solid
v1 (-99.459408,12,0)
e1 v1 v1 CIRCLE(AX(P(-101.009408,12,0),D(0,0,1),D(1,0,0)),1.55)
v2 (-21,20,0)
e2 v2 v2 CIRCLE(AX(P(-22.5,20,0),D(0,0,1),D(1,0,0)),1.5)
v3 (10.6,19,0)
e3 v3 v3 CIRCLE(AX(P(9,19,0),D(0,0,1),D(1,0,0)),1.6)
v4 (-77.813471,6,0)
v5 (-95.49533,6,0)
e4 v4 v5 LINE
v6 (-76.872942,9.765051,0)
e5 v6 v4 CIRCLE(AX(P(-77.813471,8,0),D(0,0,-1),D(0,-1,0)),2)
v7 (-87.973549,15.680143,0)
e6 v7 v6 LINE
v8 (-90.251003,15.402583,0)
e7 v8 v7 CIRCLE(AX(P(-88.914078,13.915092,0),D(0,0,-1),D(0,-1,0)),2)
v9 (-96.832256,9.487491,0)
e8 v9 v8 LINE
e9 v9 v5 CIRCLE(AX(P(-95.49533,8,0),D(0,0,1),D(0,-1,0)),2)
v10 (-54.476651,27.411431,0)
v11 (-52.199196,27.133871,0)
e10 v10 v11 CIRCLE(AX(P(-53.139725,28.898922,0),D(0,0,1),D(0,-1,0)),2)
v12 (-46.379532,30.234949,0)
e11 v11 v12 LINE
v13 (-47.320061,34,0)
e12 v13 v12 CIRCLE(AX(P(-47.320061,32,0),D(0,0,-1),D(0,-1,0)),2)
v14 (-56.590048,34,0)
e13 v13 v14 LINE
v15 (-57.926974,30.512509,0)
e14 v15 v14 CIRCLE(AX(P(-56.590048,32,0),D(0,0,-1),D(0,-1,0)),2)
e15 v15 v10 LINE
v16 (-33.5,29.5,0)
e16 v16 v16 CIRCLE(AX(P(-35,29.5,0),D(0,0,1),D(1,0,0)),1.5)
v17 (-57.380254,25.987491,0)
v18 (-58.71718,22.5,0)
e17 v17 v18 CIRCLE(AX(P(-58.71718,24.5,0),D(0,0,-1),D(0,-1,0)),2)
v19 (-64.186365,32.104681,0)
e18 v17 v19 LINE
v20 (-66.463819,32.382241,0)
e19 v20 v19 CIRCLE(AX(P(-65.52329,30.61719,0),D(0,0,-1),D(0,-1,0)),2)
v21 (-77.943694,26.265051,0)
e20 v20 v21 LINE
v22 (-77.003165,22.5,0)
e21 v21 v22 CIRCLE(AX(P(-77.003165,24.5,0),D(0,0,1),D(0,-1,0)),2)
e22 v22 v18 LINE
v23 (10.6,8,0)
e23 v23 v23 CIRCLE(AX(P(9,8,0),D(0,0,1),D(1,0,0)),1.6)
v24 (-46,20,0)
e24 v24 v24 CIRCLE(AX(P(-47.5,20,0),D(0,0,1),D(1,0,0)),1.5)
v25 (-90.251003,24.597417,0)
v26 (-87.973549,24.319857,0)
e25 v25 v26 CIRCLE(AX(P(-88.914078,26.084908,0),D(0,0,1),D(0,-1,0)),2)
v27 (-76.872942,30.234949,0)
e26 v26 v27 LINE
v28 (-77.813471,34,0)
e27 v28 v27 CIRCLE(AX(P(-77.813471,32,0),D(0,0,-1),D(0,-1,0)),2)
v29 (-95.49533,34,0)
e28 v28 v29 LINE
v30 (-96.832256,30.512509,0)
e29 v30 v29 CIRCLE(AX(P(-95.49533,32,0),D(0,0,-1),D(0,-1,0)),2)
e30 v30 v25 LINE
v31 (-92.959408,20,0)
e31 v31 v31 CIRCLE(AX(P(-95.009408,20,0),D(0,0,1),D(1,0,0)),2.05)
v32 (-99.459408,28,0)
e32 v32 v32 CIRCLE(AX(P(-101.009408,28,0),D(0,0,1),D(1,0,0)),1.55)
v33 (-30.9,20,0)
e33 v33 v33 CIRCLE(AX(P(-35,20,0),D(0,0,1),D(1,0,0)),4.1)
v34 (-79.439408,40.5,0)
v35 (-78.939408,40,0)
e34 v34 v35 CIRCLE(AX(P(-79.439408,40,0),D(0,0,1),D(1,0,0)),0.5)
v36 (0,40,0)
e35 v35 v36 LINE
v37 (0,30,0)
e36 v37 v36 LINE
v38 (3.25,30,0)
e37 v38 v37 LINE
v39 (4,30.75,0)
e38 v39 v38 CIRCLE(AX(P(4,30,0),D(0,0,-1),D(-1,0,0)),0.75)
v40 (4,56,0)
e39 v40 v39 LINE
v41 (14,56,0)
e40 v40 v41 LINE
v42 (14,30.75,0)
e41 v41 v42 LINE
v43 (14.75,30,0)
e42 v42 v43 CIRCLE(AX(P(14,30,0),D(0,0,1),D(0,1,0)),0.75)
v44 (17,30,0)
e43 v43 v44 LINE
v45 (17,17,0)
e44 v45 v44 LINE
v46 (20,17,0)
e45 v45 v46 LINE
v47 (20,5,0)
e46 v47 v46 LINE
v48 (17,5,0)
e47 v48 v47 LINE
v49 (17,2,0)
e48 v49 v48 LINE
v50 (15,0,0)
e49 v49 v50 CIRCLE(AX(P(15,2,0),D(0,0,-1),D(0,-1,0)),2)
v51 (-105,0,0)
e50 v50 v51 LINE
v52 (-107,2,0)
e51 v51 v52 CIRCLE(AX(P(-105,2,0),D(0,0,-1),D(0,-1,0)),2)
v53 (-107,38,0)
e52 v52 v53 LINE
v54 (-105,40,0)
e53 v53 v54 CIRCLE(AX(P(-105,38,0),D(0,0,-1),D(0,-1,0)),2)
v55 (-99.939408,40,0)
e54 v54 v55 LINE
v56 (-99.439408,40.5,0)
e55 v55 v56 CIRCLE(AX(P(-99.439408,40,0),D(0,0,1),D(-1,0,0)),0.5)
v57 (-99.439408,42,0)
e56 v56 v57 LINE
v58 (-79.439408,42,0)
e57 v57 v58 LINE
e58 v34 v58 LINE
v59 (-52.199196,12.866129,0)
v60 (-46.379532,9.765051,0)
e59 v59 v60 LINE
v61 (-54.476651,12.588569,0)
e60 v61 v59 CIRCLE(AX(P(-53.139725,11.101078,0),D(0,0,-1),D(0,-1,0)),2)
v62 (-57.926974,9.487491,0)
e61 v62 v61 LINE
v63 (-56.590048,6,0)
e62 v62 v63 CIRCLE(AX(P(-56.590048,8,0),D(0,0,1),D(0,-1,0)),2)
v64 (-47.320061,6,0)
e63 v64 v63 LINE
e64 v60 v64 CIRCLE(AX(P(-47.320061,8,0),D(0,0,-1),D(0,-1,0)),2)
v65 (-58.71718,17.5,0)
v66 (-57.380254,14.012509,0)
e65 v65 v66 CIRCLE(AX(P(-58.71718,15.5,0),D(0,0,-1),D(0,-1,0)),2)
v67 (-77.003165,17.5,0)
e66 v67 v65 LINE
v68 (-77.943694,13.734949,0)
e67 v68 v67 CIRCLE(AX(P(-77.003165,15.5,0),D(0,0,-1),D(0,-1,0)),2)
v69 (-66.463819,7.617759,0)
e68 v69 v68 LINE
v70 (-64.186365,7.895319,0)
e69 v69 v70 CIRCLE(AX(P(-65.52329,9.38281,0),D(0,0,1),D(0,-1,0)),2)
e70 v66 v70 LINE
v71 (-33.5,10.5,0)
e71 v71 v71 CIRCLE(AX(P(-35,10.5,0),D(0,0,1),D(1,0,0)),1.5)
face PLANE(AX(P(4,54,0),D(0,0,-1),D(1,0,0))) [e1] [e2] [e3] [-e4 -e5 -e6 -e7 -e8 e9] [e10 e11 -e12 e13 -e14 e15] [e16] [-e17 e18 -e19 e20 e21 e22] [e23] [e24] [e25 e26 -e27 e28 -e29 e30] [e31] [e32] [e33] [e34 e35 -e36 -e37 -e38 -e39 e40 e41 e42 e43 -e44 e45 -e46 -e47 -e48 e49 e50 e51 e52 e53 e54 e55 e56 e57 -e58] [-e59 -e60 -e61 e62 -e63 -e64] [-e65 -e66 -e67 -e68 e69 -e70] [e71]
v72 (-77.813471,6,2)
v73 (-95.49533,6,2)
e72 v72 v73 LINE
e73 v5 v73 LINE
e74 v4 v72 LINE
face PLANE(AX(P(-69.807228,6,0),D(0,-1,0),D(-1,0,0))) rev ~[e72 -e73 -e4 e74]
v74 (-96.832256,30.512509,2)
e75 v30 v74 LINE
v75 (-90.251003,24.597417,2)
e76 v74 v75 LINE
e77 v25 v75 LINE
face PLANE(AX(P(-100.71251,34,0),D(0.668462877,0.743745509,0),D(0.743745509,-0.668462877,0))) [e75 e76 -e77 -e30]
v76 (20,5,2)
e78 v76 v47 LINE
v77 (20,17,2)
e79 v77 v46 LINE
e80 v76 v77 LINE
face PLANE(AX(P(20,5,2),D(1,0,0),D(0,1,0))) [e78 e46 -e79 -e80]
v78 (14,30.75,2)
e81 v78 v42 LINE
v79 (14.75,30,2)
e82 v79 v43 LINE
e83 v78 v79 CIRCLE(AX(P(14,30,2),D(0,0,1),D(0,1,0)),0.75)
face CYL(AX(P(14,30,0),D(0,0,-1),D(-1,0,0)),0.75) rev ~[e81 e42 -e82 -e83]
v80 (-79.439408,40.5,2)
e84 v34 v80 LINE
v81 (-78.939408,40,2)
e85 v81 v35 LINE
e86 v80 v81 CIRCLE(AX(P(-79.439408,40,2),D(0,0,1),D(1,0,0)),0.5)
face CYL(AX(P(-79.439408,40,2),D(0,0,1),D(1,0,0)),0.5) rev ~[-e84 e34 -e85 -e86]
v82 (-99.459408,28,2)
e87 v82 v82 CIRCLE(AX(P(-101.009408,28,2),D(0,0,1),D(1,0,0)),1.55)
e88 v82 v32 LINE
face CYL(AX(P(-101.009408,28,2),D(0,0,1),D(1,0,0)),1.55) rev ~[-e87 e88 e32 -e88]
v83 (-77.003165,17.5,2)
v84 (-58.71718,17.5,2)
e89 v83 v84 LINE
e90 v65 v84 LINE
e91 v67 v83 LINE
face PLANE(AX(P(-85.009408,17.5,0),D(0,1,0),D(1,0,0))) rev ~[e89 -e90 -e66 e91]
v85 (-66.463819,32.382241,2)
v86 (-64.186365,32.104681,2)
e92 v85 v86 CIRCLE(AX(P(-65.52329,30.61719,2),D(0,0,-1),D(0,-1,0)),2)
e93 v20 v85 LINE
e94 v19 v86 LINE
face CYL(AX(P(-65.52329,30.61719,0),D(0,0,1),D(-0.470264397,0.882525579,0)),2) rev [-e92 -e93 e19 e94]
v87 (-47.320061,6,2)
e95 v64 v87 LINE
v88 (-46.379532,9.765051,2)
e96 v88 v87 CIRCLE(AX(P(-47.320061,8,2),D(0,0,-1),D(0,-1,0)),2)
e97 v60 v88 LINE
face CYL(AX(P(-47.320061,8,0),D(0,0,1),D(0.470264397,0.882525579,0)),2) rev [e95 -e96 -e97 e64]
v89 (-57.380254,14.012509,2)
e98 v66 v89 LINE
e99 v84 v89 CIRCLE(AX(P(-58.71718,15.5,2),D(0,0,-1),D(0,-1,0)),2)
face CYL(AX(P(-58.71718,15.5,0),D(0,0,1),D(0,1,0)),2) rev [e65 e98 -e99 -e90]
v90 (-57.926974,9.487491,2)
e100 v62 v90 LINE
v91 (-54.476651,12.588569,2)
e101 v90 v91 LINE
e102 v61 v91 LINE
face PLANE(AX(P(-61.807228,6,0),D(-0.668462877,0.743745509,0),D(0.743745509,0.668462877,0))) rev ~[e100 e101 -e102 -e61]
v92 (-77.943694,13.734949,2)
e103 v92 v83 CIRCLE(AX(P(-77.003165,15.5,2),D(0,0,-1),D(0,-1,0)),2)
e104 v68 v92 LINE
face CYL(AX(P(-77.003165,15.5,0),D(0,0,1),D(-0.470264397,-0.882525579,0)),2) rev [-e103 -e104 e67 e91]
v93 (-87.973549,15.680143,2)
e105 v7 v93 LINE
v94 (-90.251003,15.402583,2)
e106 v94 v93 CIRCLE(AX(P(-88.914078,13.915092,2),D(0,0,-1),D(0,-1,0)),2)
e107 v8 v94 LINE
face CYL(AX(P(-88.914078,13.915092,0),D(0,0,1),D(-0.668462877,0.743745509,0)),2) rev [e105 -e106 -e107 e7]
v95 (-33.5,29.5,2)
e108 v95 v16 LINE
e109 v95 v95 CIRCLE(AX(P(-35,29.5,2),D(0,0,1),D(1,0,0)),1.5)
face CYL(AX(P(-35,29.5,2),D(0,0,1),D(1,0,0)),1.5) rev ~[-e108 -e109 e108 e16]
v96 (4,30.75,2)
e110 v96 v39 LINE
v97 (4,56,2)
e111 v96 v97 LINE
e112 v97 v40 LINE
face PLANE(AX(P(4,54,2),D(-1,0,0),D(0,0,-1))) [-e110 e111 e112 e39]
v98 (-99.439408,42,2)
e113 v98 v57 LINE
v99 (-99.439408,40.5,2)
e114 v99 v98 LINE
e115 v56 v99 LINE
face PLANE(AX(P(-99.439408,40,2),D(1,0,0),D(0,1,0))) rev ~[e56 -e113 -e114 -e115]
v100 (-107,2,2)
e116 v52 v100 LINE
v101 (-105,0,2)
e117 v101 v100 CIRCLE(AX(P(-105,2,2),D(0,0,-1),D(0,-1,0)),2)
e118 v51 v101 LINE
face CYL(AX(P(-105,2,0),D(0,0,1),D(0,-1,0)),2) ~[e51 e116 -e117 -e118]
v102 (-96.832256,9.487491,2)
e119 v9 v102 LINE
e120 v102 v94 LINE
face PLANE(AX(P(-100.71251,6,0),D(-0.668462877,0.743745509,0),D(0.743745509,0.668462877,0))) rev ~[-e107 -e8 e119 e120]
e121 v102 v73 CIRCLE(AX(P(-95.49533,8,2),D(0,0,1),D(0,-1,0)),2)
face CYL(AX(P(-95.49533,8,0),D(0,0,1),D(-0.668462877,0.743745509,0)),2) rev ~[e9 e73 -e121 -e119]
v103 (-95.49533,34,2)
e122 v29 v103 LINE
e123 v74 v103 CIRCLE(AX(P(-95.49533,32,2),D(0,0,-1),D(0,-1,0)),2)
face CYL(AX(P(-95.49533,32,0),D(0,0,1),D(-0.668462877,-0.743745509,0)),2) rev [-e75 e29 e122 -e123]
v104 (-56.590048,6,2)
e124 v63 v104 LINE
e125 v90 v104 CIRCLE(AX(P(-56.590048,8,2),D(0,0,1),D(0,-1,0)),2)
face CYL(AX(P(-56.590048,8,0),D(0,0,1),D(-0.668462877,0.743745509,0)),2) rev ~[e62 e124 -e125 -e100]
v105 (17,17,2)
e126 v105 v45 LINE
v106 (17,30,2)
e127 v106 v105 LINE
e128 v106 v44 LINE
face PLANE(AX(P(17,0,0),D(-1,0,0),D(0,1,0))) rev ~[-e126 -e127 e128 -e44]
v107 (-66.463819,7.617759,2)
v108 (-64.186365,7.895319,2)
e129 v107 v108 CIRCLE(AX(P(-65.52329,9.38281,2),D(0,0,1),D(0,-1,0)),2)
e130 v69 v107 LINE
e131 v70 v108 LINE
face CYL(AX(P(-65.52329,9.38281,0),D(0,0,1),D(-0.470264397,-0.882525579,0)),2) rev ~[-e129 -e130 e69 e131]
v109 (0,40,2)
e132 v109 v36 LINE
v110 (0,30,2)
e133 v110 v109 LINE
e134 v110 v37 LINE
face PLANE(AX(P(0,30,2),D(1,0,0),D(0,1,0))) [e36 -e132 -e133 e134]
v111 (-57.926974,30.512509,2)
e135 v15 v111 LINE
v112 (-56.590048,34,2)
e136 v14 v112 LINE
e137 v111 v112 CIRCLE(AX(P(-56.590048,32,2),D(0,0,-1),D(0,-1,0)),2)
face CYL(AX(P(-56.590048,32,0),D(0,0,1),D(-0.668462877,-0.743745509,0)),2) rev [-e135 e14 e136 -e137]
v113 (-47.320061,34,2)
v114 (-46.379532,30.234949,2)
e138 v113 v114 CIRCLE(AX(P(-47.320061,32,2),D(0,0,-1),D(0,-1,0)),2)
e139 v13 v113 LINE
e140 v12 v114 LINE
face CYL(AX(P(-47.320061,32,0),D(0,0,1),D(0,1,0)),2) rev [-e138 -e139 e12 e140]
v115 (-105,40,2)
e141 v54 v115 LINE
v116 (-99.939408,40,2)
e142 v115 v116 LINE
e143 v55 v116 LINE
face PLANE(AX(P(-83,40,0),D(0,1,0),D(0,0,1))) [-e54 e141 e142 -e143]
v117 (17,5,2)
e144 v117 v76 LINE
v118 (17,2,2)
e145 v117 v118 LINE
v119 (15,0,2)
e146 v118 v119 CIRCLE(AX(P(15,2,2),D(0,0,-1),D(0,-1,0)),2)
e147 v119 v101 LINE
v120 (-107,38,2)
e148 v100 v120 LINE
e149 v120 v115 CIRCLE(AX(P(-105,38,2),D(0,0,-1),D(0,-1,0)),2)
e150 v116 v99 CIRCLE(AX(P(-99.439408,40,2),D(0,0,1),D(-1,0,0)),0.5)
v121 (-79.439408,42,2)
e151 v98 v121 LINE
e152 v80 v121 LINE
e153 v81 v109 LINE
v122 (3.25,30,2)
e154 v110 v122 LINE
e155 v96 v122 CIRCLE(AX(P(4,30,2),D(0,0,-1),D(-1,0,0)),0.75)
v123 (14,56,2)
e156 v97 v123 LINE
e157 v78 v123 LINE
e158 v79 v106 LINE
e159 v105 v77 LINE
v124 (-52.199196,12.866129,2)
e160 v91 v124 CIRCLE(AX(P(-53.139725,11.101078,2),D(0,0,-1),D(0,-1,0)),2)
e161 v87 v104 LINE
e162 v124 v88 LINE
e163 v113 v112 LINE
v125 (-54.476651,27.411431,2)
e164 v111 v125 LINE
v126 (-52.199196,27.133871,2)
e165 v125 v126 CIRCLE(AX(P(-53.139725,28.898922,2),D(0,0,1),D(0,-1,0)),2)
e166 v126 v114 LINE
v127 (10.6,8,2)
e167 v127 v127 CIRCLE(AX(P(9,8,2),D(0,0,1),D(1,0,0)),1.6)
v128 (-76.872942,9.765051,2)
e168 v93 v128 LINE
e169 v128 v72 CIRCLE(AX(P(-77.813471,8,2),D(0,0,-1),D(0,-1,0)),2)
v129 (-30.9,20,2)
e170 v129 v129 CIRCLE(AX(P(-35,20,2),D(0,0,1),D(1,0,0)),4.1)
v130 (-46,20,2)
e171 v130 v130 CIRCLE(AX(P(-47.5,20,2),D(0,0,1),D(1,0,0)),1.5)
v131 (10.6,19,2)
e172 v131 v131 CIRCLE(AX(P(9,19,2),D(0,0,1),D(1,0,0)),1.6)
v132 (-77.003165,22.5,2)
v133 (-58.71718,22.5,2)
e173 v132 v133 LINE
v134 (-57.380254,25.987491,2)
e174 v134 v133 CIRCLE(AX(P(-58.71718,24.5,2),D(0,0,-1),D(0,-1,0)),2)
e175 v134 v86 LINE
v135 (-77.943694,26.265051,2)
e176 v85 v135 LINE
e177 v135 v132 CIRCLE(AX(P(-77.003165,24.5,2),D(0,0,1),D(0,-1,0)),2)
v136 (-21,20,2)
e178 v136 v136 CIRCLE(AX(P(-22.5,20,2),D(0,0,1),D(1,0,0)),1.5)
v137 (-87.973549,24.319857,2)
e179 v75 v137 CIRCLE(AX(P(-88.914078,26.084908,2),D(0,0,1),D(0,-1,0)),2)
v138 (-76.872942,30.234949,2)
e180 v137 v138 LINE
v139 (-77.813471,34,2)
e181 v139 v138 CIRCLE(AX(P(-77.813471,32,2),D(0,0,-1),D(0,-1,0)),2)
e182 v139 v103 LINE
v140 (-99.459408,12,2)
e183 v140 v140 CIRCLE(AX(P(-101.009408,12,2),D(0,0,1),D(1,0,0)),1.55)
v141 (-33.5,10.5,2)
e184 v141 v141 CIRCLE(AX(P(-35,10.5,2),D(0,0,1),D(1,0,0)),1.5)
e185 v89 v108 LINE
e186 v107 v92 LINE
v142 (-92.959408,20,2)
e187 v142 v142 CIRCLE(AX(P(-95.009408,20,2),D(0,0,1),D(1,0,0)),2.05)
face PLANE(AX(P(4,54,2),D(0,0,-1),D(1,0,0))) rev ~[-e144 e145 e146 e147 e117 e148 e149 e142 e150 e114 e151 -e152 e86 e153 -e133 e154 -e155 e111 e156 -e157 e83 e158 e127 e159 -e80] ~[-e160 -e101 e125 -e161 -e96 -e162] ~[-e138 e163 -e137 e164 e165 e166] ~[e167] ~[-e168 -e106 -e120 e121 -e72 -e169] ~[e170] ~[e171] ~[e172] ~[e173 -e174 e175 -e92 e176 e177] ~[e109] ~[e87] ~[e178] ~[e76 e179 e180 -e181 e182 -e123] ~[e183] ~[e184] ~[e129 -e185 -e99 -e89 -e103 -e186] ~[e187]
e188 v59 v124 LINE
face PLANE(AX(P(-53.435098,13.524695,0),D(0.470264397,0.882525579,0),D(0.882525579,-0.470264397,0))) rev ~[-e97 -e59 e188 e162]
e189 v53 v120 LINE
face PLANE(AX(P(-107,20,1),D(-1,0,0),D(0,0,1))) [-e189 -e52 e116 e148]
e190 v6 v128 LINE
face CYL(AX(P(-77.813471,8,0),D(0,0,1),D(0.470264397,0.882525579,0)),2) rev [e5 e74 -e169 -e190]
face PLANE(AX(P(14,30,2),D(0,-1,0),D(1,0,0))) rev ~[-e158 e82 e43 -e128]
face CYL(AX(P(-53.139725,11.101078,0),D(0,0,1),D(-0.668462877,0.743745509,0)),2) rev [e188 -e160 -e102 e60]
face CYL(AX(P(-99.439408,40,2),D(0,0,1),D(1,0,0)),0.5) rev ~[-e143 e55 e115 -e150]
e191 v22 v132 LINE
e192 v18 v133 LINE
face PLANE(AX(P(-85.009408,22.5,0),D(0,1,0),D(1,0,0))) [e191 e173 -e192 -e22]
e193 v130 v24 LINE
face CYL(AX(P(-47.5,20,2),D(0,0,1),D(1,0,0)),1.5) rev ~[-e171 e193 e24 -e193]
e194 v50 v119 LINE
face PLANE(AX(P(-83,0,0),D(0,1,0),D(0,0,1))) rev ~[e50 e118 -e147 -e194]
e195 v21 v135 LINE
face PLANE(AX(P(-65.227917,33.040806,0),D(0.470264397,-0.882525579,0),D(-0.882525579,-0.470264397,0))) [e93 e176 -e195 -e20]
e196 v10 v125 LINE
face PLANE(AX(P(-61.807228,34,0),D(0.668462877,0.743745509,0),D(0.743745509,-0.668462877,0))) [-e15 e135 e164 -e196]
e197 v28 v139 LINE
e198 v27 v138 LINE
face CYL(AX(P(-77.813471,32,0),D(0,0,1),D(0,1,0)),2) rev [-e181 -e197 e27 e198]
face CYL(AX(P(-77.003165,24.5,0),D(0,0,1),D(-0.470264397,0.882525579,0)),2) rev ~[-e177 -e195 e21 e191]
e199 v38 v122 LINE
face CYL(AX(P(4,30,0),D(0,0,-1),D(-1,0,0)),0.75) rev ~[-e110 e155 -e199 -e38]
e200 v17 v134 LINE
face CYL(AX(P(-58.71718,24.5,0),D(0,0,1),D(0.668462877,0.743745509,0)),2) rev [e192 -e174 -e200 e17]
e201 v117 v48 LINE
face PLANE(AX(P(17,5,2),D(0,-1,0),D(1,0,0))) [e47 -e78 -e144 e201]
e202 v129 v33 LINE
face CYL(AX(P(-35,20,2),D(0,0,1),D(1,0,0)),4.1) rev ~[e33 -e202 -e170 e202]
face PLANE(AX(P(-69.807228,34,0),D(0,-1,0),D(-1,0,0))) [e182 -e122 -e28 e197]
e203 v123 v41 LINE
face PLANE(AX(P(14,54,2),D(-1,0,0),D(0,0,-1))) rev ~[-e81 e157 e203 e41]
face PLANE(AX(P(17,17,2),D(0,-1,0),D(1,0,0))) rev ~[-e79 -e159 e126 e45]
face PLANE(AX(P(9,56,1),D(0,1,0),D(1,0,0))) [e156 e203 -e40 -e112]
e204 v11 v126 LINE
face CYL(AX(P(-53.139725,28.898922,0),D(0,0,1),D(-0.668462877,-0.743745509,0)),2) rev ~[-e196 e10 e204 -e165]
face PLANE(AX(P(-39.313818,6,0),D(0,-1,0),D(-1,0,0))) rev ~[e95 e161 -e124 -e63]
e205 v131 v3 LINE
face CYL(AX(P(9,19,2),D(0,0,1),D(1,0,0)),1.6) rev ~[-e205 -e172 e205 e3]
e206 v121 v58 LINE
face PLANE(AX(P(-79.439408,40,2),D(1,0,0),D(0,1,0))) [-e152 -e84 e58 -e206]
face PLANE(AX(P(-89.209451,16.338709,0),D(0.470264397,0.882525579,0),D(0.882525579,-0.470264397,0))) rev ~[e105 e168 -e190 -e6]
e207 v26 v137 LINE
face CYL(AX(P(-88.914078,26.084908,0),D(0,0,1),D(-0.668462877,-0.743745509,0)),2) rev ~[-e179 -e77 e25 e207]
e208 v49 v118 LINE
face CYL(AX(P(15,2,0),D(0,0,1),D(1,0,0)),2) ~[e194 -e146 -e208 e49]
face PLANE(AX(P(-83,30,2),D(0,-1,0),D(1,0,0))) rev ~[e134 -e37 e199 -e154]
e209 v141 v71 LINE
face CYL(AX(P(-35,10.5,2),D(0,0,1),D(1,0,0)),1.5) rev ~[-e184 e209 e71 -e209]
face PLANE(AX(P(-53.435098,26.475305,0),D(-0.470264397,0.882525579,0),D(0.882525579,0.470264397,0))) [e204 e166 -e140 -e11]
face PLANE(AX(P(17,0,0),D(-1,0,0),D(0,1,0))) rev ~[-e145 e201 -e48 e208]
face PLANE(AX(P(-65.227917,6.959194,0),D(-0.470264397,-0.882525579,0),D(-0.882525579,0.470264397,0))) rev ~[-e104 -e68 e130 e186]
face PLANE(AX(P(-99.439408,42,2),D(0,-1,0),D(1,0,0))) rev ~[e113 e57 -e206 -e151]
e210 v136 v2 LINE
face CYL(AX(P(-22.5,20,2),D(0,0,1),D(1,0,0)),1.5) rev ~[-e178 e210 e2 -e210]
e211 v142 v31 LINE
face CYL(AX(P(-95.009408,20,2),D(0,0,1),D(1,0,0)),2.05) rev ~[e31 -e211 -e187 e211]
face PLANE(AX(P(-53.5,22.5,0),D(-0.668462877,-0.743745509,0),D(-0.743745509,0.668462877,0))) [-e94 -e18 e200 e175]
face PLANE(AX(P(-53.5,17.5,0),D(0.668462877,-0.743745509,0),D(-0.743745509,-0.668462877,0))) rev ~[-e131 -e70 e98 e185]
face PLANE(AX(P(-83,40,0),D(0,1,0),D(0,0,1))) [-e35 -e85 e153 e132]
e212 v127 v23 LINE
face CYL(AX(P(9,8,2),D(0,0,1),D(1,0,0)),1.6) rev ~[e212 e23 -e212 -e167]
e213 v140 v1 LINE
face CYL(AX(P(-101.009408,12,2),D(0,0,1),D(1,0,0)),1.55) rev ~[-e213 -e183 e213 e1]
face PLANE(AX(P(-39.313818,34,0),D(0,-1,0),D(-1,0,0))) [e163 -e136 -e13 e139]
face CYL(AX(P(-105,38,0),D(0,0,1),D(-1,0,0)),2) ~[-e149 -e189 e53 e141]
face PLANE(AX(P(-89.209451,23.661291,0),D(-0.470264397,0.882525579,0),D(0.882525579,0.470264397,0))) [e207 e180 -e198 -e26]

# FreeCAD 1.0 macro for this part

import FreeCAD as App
import Part
import Sketcher

V = App.Vector
Q = App.Units.Quantity


def edges_at(feature, points):
    """Names of the edges that pass closest to the given points."""
    edges = feature.Shape.Edges
    near = lambda p: min(range(len(edges)), key=lambda i: edges[i].distToShape(Part.Vertex(*p))[0])
    return sorted({f"Edge{near(p) + 1}" for p in points})

doc = App.newDocument("Part")
body = doc.addObject("PartDesign::Body", "Body")

# Sketch on XY plane
sketch1 = doc.addObject("Sketcher::SketchObject", "Sketch")
body.addObject(sketch1)
sketch1.AttachmentSupport = (doc.XY_Plane, [""])
sketch1.MapMode = "FlatFace"
sketch1.addGeometry([
    Part.LineSegment(V(0, 0, 0), V(17, 0, 0)),  # 0
    Part.LineSegment(V(17, 0, 0), V(17, 5, 0)),  # 1
    Part.LineSegment(V(17, 5, 0), V(20, 5, 0)),  # 2
    Part.LineSegment(V(20, 5, 0), V(20, 17, 0)),  # 3
    Part.LineSegment(V(20, 17, 0), V(17, 17, 0)),  # 4
    Part.LineSegment(V(17, 17, 0), V(17, 54, 0)),  # 5
    Part.LineSegment(V(17, 54, 0), V(0, 54, 0)),  # 6
    Part.LineSegment(V(0, 54, 0), V(0, 0, 0)),  # 7
], False)
sketch1.addConstraint([
    Sketcher.Constraint("Coincident", 0, 2, 1, 1),
    Sketcher.Constraint("Coincident", 1, 2, 2, 1),
    Sketcher.Constraint("Coincident", 2, 2, 3, 1),
    Sketcher.Constraint("Coincident", 3, 2, 4, 1),
    Sketcher.Constraint("Coincident", 4, 2, 5, 1),
    Sketcher.Constraint("Coincident", 5, 2, 6, 1),
    Sketcher.Constraint("Coincident", 6, 2, 7, 1),
    Sketcher.Constraint("Coincident", 7, 2, 0, 1),
    Sketcher.Constraint("Horizontal", 0),
    Sketcher.Constraint("Vertical", 1),
    Sketcher.Constraint("Horizontal", 2),
    Sketcher.Constraint("Vertical", 3),
    Sketcher.Constraint("Horizontal", 4),
    Sketcher.Constraint("Vertical", 5),
    Sketcher.Constraint("Horizontal", 6),
    Sketcher.Constraint("Vertical", 7),
    Sketcher.Constraint("Coincident", 7, 2, -1, 1),
    Sketcher.Constraint("Vertical", 1, 2, 4, 2),
    Sketcher.Constraint("DistanceX", 0, 1, 0, 2, Q("17 mm")),
    Sketcher.Constraint("DistanceX", 2, 1, 2, 2, Q("3 mm")),
    Sketcher.Constraint("DistanceY", 1, 1, 1, 2, Q("5 mm")),
    Sketcher.Constraint("DistanceY", 3, 1, 3, 2, Q("12 mm")),
    Sketcher.Constraint("DistanceY", 5, 1, 5, 2, Q("37 mm")),
])
pad1 = doc.addObject("PartDesign::Pad", "Pad")
body.addObject(pad1)
pad1.Profile = sketch1
pad1.Length = 2

# Sketch on XY plane
sketch2 = doc.addObject("Sketcher::SketchObject", "Sketch001")
body.addObject(sketch2)
sketch2.AttachmentSupport = (doc.XY_Plane, [""])
sketch2.MapMode = "FlatFace"
sketch2.AttachmentOffset = App.Placement(V(0, 0, 2), App.Rotation())
sketch2.addGeometry([
    Part.Circle(V(9, 8, 0), V(0, 0, 1), 1.6),
    Part.Circle(V(9, 19, 0), V(0, 0, 1), 1.6),
], False)
sketch2.addConstraint([
    Sketcher.Constraint("Equal", 0, 1),
    Sketcher.Constraint("Vertical", 0, 3, 1, 3),
    Sketcher.Constraint("Diameter", 0, Q("3.2 mm")),
    Sketcher.Constraint("DistanceX", -1, 1, 0, 3, Q("9 mm")),
    Sketcher.Constraint("DistanceY", -1, 1, 0, 3, Q("8 mm")),
    Sketcher.Constraint("DistanceY", -1, 1, 1, 3, Q("19 mm")),
])
pocket1 = doc.addObject("PartDesign::Pocket", "Pocket")
body.addObject(pocket1)
pocket1.Profile = sketch2
pocket1.Type = "ThroughAll"

# Sketch on XY plane
sketch3 = doc.addObject("Sketcher::SketchObject", "Sketch002")
body.addObject(sketch3)
sketch3.AttachmentSupport = (doc.XY_Plane, [""])
sketch3.MapMode = "FlatFace"
sketch3.AttachmentOffset = App.Placement(V(0, 0, 2), App.Rotation())
sketch3.addGeometry([
    Part.LineSegment(V(14, 54, 0), V(14, 30, 0)),  # 0
    Part.LineSegment(V(14, 30, 0), V(17, 30, 0)),  # 1
    Part.LineSegment(V(17, 30, 0), V(17, 54, 0)),  # 2
    Part.LineSegment(V(17, 54, 0), V(14, 54, 0)),  # 3
    Part.LineSegment(V(0, 54, 0), V(0, 30, 0)),  # 4
    Part.LineSegment(V(0, 30, 0), V(4, 30, 0)),  # 5
    Part.LineSegment(V(4, 30, 0), V(4, 54, 0)),  # 6
    Part.LineSegment(V(4, 54, 0), V(0, 54, 0)),  # 7
], False)
sketch3.addConstraint([
    Sketcher.Constraint("Coincident", 0, 2, 1, 1),
    Sketcher.Constraint("Coincident", 1, 2, 2, 1),
    Sketcher.Constraint("Coincident", 2, 2, 3, 1),
    Sketcher.Constraint("Coincident", 3, 2, 0, 1),
    Sketcher.Constraint("Coincident", 4, 2, 5, 1),
    Sketcher.Constraint("Coincident", 5, 2, 6, 1),
    Sketcher.Constraint("Coincident", 6, 2, 7, 1),
    Sketcher.Constraint("Coincident", 7, 2, 4, 1),
    Sketcher.Constraint("Vertical", 0),
    Sketcher.Constraint("Horizontal", 1),
    Sketcher.Constraint("Vertical", 2),
    Sketcher.Constraint("Horizontal", 3),
    Sketcher.Constraint("Vertical", 4),
    Sketcher.Constraint("Horizontal", 5),
    Sketcher.Constraint("Vertical", 6),
    Sketcher.Constraint("Horizontal", 7),
    Sketcher.Constraint("PointOnObject", 4, 2, -2),
    Sketcher.Constraint("Horizontal", 1, 2, 4, 2),
    Sketcher.Constraint("Horizontal", 3, 2, 6, 2),
    Sketcher.Constraint("DistanceX", 1, 1, 1, 2, Q("3 mm")),
    Sketcher.Constraint("DistanceX", 5, 1, 5, 2, Q("4 mm")),
    Sketcher.Constraint("DistanceY", 0, 2, 0, 1, Q("24 mm")),
    Sketcher.Constraint("DistanceX", -1, 1, 0, 2, Q("14 mm")),
    Sketcher.Constraint("DistanceY", -1, 1, 0, 2, Q("30 mm")),
])
pocket2 = doc.addObject("PartDesign::Pocket", "Pocket001")
body.addObject(pocket2)
pocket2.Profile = sketch3
pocket2.Type = "ThroughAll"

# Sketch on XY plane
sketch4 = doc.addObject("Sketcher::SketchObject", "Sketch003")
body.addObject(sketch4)
sketch4.AttachmentSupport = (doc.XY_Plane, [""])
sketch4.MapMode = "FlatFace"
sketch4.AttachmentOffset = App.Placement(V(0, 0, 2), App.Rotation())
sketch4.addGeometry([
    Part.LineSegment(V(17, 17, 0), V(17, 5, 0)),
    Part.LineSegment(V(17, 5, 0), V(20, 5, 0)),
    Part.LineSegment(V(20, 5, 0), V(20, 17, 0)),
    Part.LineSegment(V(20, 17, 0), V(17, 17, 0)),
], False)
sketch4.addConstraint([
    Sketcher.Constraint("Coincident", 0, 2, 1, 1),
    Sketcher.Constraint("Coincident", 1, 2, 2, 1),
    Sketcher.Constraint("Coincident", 2, 2, 3, 1),
    Sketcher.Constraint("Coincident", 3, 2, 0, 1),
    Sketcher.Constraint("Vertical", 0),
    Sketcher.Constraint("Horizontal", 1),
    Sketcher.Constraint("Vertical", 2),
    Sketcher.Constraint("Horizontal", 3),
    Sketcher.Constraint("DistanceX", 1, 1, 1, 2, Q("3 mm")),
    Sketcher.Constraint("DistanceY", 0, 2, 0, 1, Q("12 mm")),
    Sketcher.Constraint("DistanceX", -1, 1, 0, 2, Q("17 mm")),
    Sketcher.Constraint("DistanceY", -1, 1, 0, 2, Q("5 mm")),
])
pocket3 = doc.addObject("PartDesign::Pocket", "Pocket002")
body.addObject(pocket3)
pocket3.Profile = sketch4
pocket3.Type = "ThroughAll"

# Sketch on XY plane
sketch5 = doc.addObject("Sketcher::SketchObject", "Sketch004")
body.addObject(sketch5)
sketch5.AttachmentSupport = (doc.XY_Plane, [""])
sketch5.MapMode = "FlatFace"
sketch5.AttachmentOffset = App.Placement(V(0, 0, 2), App.Rotation())
sketch5.addGeometry([
    Part.LineSegment(V(-83, 30, 0), V(-83, 0, 0)),
    Part.LineSegment(V(-83, 0, 0), V(0, 0, 0)),
    Part.LineSegment(V(0, 0, 0), V(0, 30, 0)),
    Part.LineSegment(V(0, 30, 0), V(-83, 30, 0)),
], False)
sketch5.addConstraint([
    Sketcher.Constraint("Coincident", 0, 2, 1, 1),
    Sketcher.Constraint("Coincident", 1, 2, 2, 1),
    Sketcher.Constraint("Coincident", 2, 2, 3, 1),
    Sketcher.Constraint("Coincident", 3, 2, 0, 1),
    Sketcher.Constraint("Vertical", 0),
    Sketcher.Constraint("Horizontal", 1),
    Sketcher.Constraint("Vertical", 2),
    Sketcher.Constraint("Horizontal", 3),
    Sketcher.Constraint("Coincident", 1, 2, -1, 1),
    Sketcher.Constraint("DistanceX", 1, 1, 1, 2, Q("83 mm")),
    Sketcher.Constraint("DistanceY", 0, 2, 0, 1, Q("30 mm")),
])
pad2 = doc.addObject("PartDesign::Pad", "Pad001")
body.addObject(pad2)
pad2.Profile = sketch5
pad2.Length = 2
pad2.Reversed = True

# Sketch on XY plane
sketch6 = doc.addObject("Sketcher::SketchObject", "Sketch005")
body.addObject(sketch6)
sketch6.AttachmentSupport = (doc.XY_Plane, [""])
sketch6.MapMode = "FlatFace"
sketch6.AttachmentOffset = App.Placement(V(0, 0, 2), App.Rotation())
sketch6.addGeometry(Part.Circle(V(-35, 20, 0), V(0, 0, 1), 4.1), False)
sketch6.addConstraint([
    Sketcher.Constraint("Diameter", 0, Q("8.2 mm")),
    Sketcher.Constraint("DistanceX", 0, 3, -1, 1, Q("35 mm")),
    Sketcher.Constraint("DistanceY", -1, 1, 0, 3, Q("20 mm")),
])
pocket4 = doc.addObject("PartDesign::Pocket", "Pocket003")
body.addObject(pocket4)
pocket4.Profile = sketch6
pocket4.Type = "ThroughAll"

# Sketch on XY plane
sketch7 = doc.addObject("Sketcher::SketchObject", "Sketch006")
body.addObject(sketch7)
sketch7.AttachmentSupport = (doc.XY_Plane, [""])
sketch7.MapMode = "FlatFace"
sketch7.AttachmentOffset = App.Placement(V(0, 0, 2), App.Rotation())
sketch7.addGeometry([
    Part.LineSegment(V(-83, 40, 0), V(-83, 30, 0)),
    Part.LineSegment(V(-83, 30, 0), V(0, 30, 0)),
    Part.LineSegment(V(0, 30, 0), V(0, 40, 0)),
    Part.LineSegment(V(0, 40, 0), V(-83, 40, 0)),
], False)
sketch7.addConstraint([
    Sketcher.Constraint("Coincident", 0, 2, 1, 1),
    Sketcher.Constraint("Coincident", 1, 2, 2, 1),
    Sketcher.Constraint("Coincident", 2, 2, 3, 1),
    Sketcher.Constraint("Coincident", 3, 2, 0, 1),
    Sketcher.Constraint("Vertical", 0),
    Sketcher.Constraint("Horizontal", 1),
    Sketcher.Constraint("Vertical", 2),
    Sketcher.Constraint("Horizontal", 3),
    Sketcher.Constraint("PointOnObject", 1, 2, -2),
    Sketcher.Constraint("DistanceX", 1, 1, 1, 2, Q("83 mm")),
    Sketcher.Constraint("DistanceY", 0, 2, 0, 1, Q("10 mm")),
    Sketcher.Constraint("DistanceY", -1, 1, 0, 2, Q("30 mm")),
])
pad3 = doc.addObject("PartDesign::Pad", "Pad002")
body.addObject(pad3)
pad3.Profile = sketch7
pad3.Length = 2
pad3.Reversed = True

# Sketch on XY plane
sketch8 = doc.addObject("Sketcher::SketchObject", "Sketch007")
body.addObject(sketch8)
sketch8.AttachmentSupport = (doc.XY_Plane, [""])
sketch8.MapMode = "FlatFace"
sketch8.AttachmentOffset = App.Placement(V(0, 0, 2), App.Rotation())
sketch8.addGeometry([
    Part.Circle(V(-35, 29.5, 0), V(0, 0, 1), 1.5),
    Part.Circle(V(-35, 10.5, 0), V(0, 0, 1), 1.5),
    Part.Circle(V(-47.5, 20, 0), V(0, 0, 1), 1.5),
    Part.Circle(V(-22.5, 20, 0), V(0, 0, 1), 1.5),
], False)
sketch8.addConstraint([
    Sketcher.Constraint("Equal", 0, 1),
    Sketcher.Constraint("Equal", 1, 2),
    Sketcher.Constraint("Equal", 2, 3),
    Sketcher.Constraint("Horizontal", 2, 3, 3, 3),
    Sketcher.Constraint("Vertical", 0, 3, 1, 3),
    Sketcher.Constraint("Diameter", 0, Q("3 mm")),
    Sketcher.Constraint("DistanceX", 0, 3, -1, 1, Q("35 mm")),
    Sketcher.Constraint("DistanceY", -1, 1, 2, 3, Q("20 mm")),
    Sketcher.Constraint("DistanceY", 1, 3, 0, 3, Q("19 mm")),
    Sketcher.Constraint("DistanceX", 2, 3, 3, 3, Q("25 mm")),
    Sketcher.Constraint("DistanceY", -1, 1, 0, 3, Q("29.5 mm")),
    Sketcher.Constraint("DistanceX", 2, 3, -1, 1, Q("47.5 mm")),
])
pocket5 = doc.addObject("PartDesign::Pocket", "Pocket004")
body.addObject(pocket5)
pocket5.Profile = sketch8
pocket5.Length = 10

# Sketch on YZ plane
sketch9 = doc.addObject("Sketcher::SketchObject", "Sketch008")
body.addObject(sketch9)
sketch9.AttachmentSupport = (doc.YZ_Plane, [""])
sketch9.MapMode = "FlatFace"
sketch9.AttachmentOffset = App.Placement(V(0, 0, -83), App.Rotation())
sketch9.addGeometry([
    Part.LineSegment(V(40, 0, 0), V(0, 0, 0)),
    Part.LineSegment(V(0, 0, 0), V(0, 2, 0)),
    Part.LineSegment(V(0, 2, 0), V(40, 2, 0)),
    Part.LineSegment(V(40, 2, 0), V(40, 0, 0)),
], False)
sketch9.addConstraint([
    Sketcher.Constraint("Coincident", 0, 2, 1, 1),
    Sketcher.Constraint("Coincident", 1, 2, 2, 1),
    Sketcher.Constraint("Coincident", 2, 2, 3, 1),
    Sketcher.Constraint("Coincident", 3, 2, 0, 1),
    Sketcher.Constraint("Horizontal", 0),
    Sketcher.Constraint("Vertical", 1),
    Sketcher.Constraint("Horizontal", 2),
    Sketcher.Constraint("Vertical", 3),
    Sketcher.Constraint("Coincident", 0, 2, -1, 1),
    Sketcher.Constraint("DistanceX", 0, 2, 0, 1, Q("40 mm")),
    Sketcher.Constraint("DistanceY", 1, 1, 1, 2, Q("2 mm")),
])
pad4 = doc.addObject("PartDesign::Pad", "Pad003")
body.addObject(pad4)
pad4.Profile = sketch9
pad4.Length = 24
pad4.Reversed = True

# Sketch on XY plane
sketch10 = doc.addObject("Sketcher::SketchObject", "Sketch009")
body.addObject(sketch10)
sketch10.AttachmentSupport = (doc.XY_Plane, [""])
sketch10.MapMode = "FlatFace"
sketch10.addGeometry([
    Part.Circle(V(4, 30, 0), V(0, 0, 1), 0.8),
    Part.Circle(V(14, 30, 0), V(0, 0, 1), 0.8),
], False)
sketch10.addConstraint([
    Sketcher.Constraint("Equal", 0, 1),
    Sketcher.Constraint("Horizontal", 0, 3, 1, 3),
    Sketcher.Constraint("Diameter", 0, Q("1.5 mm")),
    Sketcher.Constraint("DistanceX", -1, 1, 0, 3, Q("4 mm")),
    Sketcher.Constraint("DistanceY", -1, 1, 0, 3, Q("30 mm")),
    Sketcher.Constraint("DistanceX", -1, 1, 1, 3, Q("14 mm")),
])
pocket6 = doc.addObject("PartDesign::Pocket", "Pocket005")
body.addObject(pocket6)
pocket6.Profile = sketch10
pocket6.Length = 3
pocket6.Reversed = True

# Sketch on XZ plane
sketch11 = doc.addObject("Sketcher::SketchObject", "Sketch010")
body.addObject(sketch11)
sketch11.AttachmentSupport = (doc.XZ_Plane, [""])
sketch11.MapMode = "FlatFace"
sketch11.AttachmentOffset = App.Placement(V(0, 0, -54), App.Rotation())
sketch11.addGeometry([
    Part.LineSegment(V(4, 0, 0), V(4, 2, 0)),
    Part.LineSegment(V(4, 2, 0), V(14, 2, 0)),
    Part.LineSegment(V(14, 2, 0), V(14, 0, 0)),
    Part.LineSegment(V(14, 0, 0), V(4, 0, 0)),
], False)
sketch11.addConstraint([
    Sketcher.Constraint("Coincident", 0, 2, 1, 1),
    Sketcher.Constraint("Coincident", 1, 2, 2, 1),
    Sketcher.Constraint("Coincident", 2, 2, 3, 1),
    Sketcher.Constraint("Coincident", 3, 2, 0, 1),
    Sketcher.Constraint("Vertical", 0),
    Sketcher.Constraint("Horizontal", 1),
    Sketcher.Constraint("Vertical", 2),
    Sketcher.Constraint("Horizontal", 3),
    Sketcher.Constraint("PointOnObject", 2, 2, -1),
    Sketcher.Constraint("DistanceX", 1, 1, 1, 2, Q("10 mm")),
    Sketcher.Constraint("DistanceY", 0, 1, 0, 2, Q("2 mm")),
    Sketcher.Constraint("DistanceX", -1, 1, 0, 2, Q("4 mm")),
])
pad5 = doc.addObject("PartDesign::Pad", "Pad004")
body.addObject(pad5)
pad5.Profile = sketch11
pad5.Length = 2
pad5.Reversed = True

# Sketch on XY plane
sketch12 = doc.addObject("Sketcher::SketchObject", "Sketch011")
body.addObject(sketch12)
sketch12.AttachmentSupport = (doc.XY_Plane, [""])
sketch12.MapMode = "FlatFace"
sketch12.AttachmentOffset = App.Placement(V(0, 0, 2), App.Rotation())
sketch12.addGeometry([
    Part.LineSegment(V(-99.4, 42, 0), V(-99.4, 40, 0)),
    Part.LineSegment(V(-99.4, 40, 0), V(-79.4, 40, 0)),
    Part.LineSegment(V(-79.4, 40, 0), V(-79.4, 42, 0)),
    Part.LineSegment(V(-79.4, 42, 0), V(-99.4, 42, 0)),
], False)
sketch12.addConstraint([
    Sketcher.Constraint("Coincident", 0, 2, 1, 1),
    Sketcher.Constraint("Coincident", 1, 2, 2, 1),
    Sketcher.Constraint("Coincident", 2, 2, 3, 1),
    Sketcher.Constraint("Coincident", 3, 2, 0, 1),
    Sketcher.Constraint("Vertical", 0),
    Sketcher.Constraint("Horizontal", 1),
    Sketcher.Constraint("Vertical", 2),
    Sketcher.Constraint("Horizontal", 3),
    Sketcher.Constraint("DistanceX", 1, 1, 1, 2, Q("20 mm")),
    Sketcher.Constraint("DistanceY", 0, 2, 0, 1, Q("2 mm")),
    Sketcher.Constraint("DistanceY", -1, 1, 0, 2, Q("40 mm")),
    Sketcher.Constraint("DistanceX", 0, 2, -1, 1, Q("99.439408 mm")),
])
pad6 = doc.addObject("PartDesign::Pad", "Pad005")
body.addObject(pad6)
pad6.Profile = sketch12
pad6.Length = 2
pad6.Reversed = True

# Sketch on XY plane
sketch13 = doc.addObject("Sketcher::SketchObject", "Sketch012")
body.addObject(sketch13)
sketch13.AttachmentSupport = (doc.XY_Plane, [""])
sketch13.MapMode = "FlatFace"
sketch13.AttachmentOffset = App.Placement(V(0, 0, 2), App.Rotation())
sketch13.addGeometry([
    Part.Circle(V(-101, 12, 0), V(0, 0, 1), 1.6),
    Part.Circle(V(-101, 28, 0), V(0, 0, 1), 1.6),
    Part.Circle(V(-95, 20, 0), V(0, 0, 1), 2),
], False)
sketch13.addConstraint([
    Sketcher.Constraint("Equal", 0, 1),
    Sketcher.Constraint("Vertical", 0, 3, 1, 3),
    Sketcher.Constraint("Diameter", 0, Q("3.1 mm")),
    Sketcher.Constraint("Diameter", 2, Q("4.1 mm")),
    Sketcher.Constraint("DistanceY", -1, 1, 0, 3, Q("12 mm")),
    Sketcher.Constraint("DistanceY", -1, 1, 1, 3, Q("28 mm")),
    Sketcher.Constraint("DistanceY", -1, 1, 2, 3, Q("20 mm")),
    Sketcher.Constraint("DistanceX", 0, 3, 2, 3, Q("6 mm")),
    Sketcher.Constraint("DistanceX", 0, 3, -1, 1, Q("101.009408 mm")),
])
pocket7 = doc.addObject("PartDesign::Pocket", "Pocket006")
body.addObject(pocket7)
pocket7.Profile = sketch13
pocket7.Length = 10
doc.recompute()

fillet = doc.addObject("PartDesign::Fillet", "Fillet")
body.addObject(fillet)
fillet.Base = (pocket7, edges_at(pocket7, [(-107, 0, 1), (-107, 40, 1), (17, 0, 1)]))
fillet.Radius = 2

# Sketch on XY plane
sketch14 = doc.addObject("Sketcher::SketchObject", "Sketch013")
body.addObject(sketch14)
sketch14.AttachmentSupport = (doc.XY_Plane, [""])
sketch14.MapMode = "FlatFace"
sketch14.addGeometry([
    Part.LineSegment(V(-101, 6, 0), V(-89, 16, 0)),  # 0
    Part.LineSegment(V(-89, 16, 0), V(-70, 6, 0)),  # 1
    Part.LineSegment(V(-70, 6, 0), V(-101, 6, 0)),  # 2
    Part.LineSegment(V(-65, 7, 0), V(-85, 18, 0)),  # 3
    Part.LineSegment(V(-85, 18, 0), V(-54, 18, 0)),  # 4
    Part.LineSegment(V(-54, 18, 0), V(-65, 7, 0)),  # 5
    Part.LineSegment(V(-62, 6, 0), V(-53, 14, 0)),  # 6
    Part.LineSegment(V(-53, 14, 0), V(-39, 6, 0)),  # 7
    Part.LineSegment(V(-39, 6, 0), V(-62, 6, 0)),  # 8
    Part.LineSegment(V(-39, 34, 0), V(-53, 26, 0)),  # 9
    Part.LineSegment(V(-53, 26, 0), V(-62, 34, 0)),  # 10
    Part.LineSegment(V(-62, 34, 0), V(-39, 34, 0)),  # 11
    Part.LineSegment(V(-54, 22, 0), V(-85, 22, 0)),  # 12
    Part.LineSegment(V(-85, 22, 0), V(-65, 33, 0)),  # 13
    Part.LineSegment(V(-65, 33, 0), V(-54, 22, 0)),  # 14
    Part.LineSegment(V(-70, 34, 0), V(-89, 24, 0)),  # 15
    Part.LineSegment(V(-89, 24, 0), V(-101, 34, 0)),  # 16
    Part.LineSegment(V(-101, 34, 0), V(-70, 34, 0)),  # 17
], False)
sketch14.addConstraint([
    Sketcher.Constraint("Coincident", 0, 2, 1, 1),
    Sketcher.Constraint("Coincident", 1, 2, 2, 1),
    Sketcher.Constraint("Coincident", 2, 2, 0, 1),
    Sketcher.Constraint("Coincident", 3, 2, 4, 1),
    Sketcher.Constraint("Coincident", 4, 2, 5, 1),
    Sketcher.Constraint("Coincident", 5, 2, 3, 1),
    Sketcher.Constraint("Coincident", 6, 2, 7, 1),
    Sketcher.Constraint("Coincident", 7, 2, 8, 1),
    Sketcher.Constraint("Coincident", 8, 2, 6, 1),
    Sketcher.Constraint("Coincident", 9, 2, 10, 1),
    Sketcher.Constraint("Coincident", 10, 2, 11, 1),
    Sketcher.Constraint("Coincident", 11, 2, 9, 1),
    Sketcher.Constraint("Coincident", 12, 2, 13, 1),
    Sketcher.Constraint("Coincident", 13, 2, 14, 1),
    Sketcher.Constraint("Coincident", 14, 2, 12, 1),
    Sketcher.Constraint("Coincident", 15, 2, 16, 1),
    Sketcher.Constraint("Coincident", 16, 2, 17, 1),
    Sketcher.Constraint("Coincident", 17, 2, 15, 1),
    Sketcher.Constraint("Horizontal", 2),
    Sketcher.Constraint("Horizontal", 4),
    Sketcher.Constraint("Horizontal", 8),
    Sketcher.Constraint("Horizontal", 11),
    Sketcher.Constraint("Horizontal", 12),
    Sketcher.Constraint("Horizontal", 17),
    Sketcher.Constraint("Parallel", 1, 3),
    Sketcher.Constraint("Parallel", 0, 5),
    Sketcher.Constraint("Parallel", 5, 6),
    Sketcher.Constraint("Parallel", 3, 7),
    Sketcher.Constraint("Parallel", 9, 13),
    Sketcher.Constraint("Parallel", 10, 14),
    Sketcher.Constraint("Parallel", 13, 15),
    Sketcher.Constraint("Parallel", 14, 16),
    Sketcher.Constraint("Horizontal", 2, 2, 7, 2),
    Sketcher.Constraint("Horizontal", 11, 2, 16, 2),
    Sketcher.Constraint("Vertical", 6, 2, 9, 2),
    Sketcher.Constraint("Vertical", 8, 2, 10, 2),
    Sketcher.Constraint("Vertical", 7, 2, 11, 2),
    Sketcher.Constraint("Vertical", 3, 2, 12, 2),
    Sketcher.Constraint("Vertical", 5, 2, 13, 2),
    Sketcher.Constraint("Vertical", 0, 2, 15, 2),
    Sketcher.Constraint("Vertical", 2, 2, 16, 2),
    Sketcher.Constraint("Equal", 7, 9),
    Sketcher.Constraint("DistanceY", -1, 1, 1, 2, Q("6 mm")),
    Sketcher.Constraint("DistanceY", -1, 1, 10, 2, Q("34 mm")),
    Sketcher.Constraint("DistanceX", 1, 2, 8, 2, Q("8 mm")),
    Sketcher.Constraint("DistanceY", 3, 2, 12, 2, Q("5 mm")),
    Sketcher.Constraint("DistanceY", -1, 1, 3, 2, Q("17.5 mm")),
    Sketcher.Constraint("DistanceX", 4, 2, -1, 1, Q("53.5 mm")),
    Sketcher.Constraint("DistanceX", 4, 1, 4, 2, Q("31.509408 mm")),
    Sketcher.Constraint("DistanceX", 8, 2, 8, 1, Q("22.49341 mm")),
    Sketcher.Constraint("DistanceX", 6, 2, -1, 1, Q("53.435098 mm")),
    Sketcher.Constraint("DistanceY", 5, 2, 6, 2, Q("6.565501 mm")),
    Sketcher.Constraint("DistanceX", 5, 2, 7, 2, Q("25.914099 mm")),
    Sketcher.Constraint("Distance", 0, Q("15.466392 mm")),
])
pocket8 = doc.addObject("PartDesign::Pocket", "Pocket007")
body.addObject(pocket8)
pocket8.Profile = sketch14
pocket8.Length = 10
pocket8.Reversed = True
doc.recompute()

fillet2 = doc.addObject("PartDesign::Fillet", "Fillet001")
body.addObject(fillet2)
fillet2.Base = (pocket8, edges_at(pocket8, [
    (-61.807, 6, 1),
    (-39.314, 6, 1),
    (-53.435, 13.525, 1),
    (-65.228, 6.959, 1),
    (-53.5, 17.5, 1),
    (-85.009, 17.5, 1),
    (-65.228, 33.041, 1),
    (-85.009, 22.5, 1),
    (-53.5, 22.5, 1),
    (-61.807, 34, 1),
    (-53.435, 26.475, 1),
    (-39.314, 34, 1),
    (-100.713, 34, 1),
    (-89.209, 23.661, 1),
    (-69.807, 34, 1),
    (-100.713, 6, 1),
    (-69.807, 6, 1),
    (-89.209, 16.339, 1),
]))
fillet2.Radius = 2

# Sketch on XY plane
sketch15 = doc.addObject("Sketcher::SketchObject", "Sketch014")
body.addObject(sketch15)
sketch15.AttachmentSupport = (doc.XY_Plane, [""])
sketch15.MapMode = "FlatFace"
sketch15.AttachmentOffset = App.Placement(V(0, 0, 2), App.Rotation())
sketch15.addGeometry([
    Part.LineSegment(V(17, 17, 0), V(17, 5, 0)),
    Part.LineSegment(V(17, 5, 0), V(20, 5, 0)),
    Part.LineSegment(V(20, 5, 0), V(20, 17, 0)),
    Part.LineSegment(V(20, 17, 0), V(17, 17, 0)),
], False)
sketch15.addConstraint([
    Sketcher.Constraint("Coincident", 0, 2, 1, 1),
    Sketcher.Constraint("Coincident", 1, 2, 2, 1),
    Sketcher.Constraint("Coincident", 2, 2, 3, 1),
    Sketcher.Constraint("Coincident", 3, 2, 0, 1),
    Sketcher.Constraint("Vertical", 0),
    Sketcher.Constraint("Horizontal", 1),
    Sketcher.Constraint("Vertical", 2),
    Sketcher.Constraint("Horizontal", 3),
    Sketcher.Constraint("DistanceX", 1, 1, 1, 2, Q("3 mm")),
    Sketcher.Constraint("DistanceY", 0, 2, 0, 1, Q("12 mm")),
    Sketcher.Constraint("DistanceX", -1, 1, 0, 2, Q("17 mm")),
    Sketcher.Constraint("DistanceY", -1, 1, 0, 2, Q("5 mm")),
])
pad7 = doc.addObject("PartDesign::Pad", "Pad006")
body.addObject(pad7)
pad7.Profile = sketch15
pad7.Length = 2
pad7.Reversed = True

# Sketch on XY plane
sketch16 = doc.addObject("Sketcher::SketchObject", "Sketch015")
body.addObject(sketch16)
sketch16.AttachmentSupport = (doc.XY_Plane, [""])
sketch16.MapMode = "FlatFace"
sketch16.AttachmentOffset = App.Placement(V(0, 0, 2), App.Rotation())
sketch16.addGeometry([
    Part.Circle(V(-79.4, 40, 0), V(0, 0, 1), 0.5),
    Part.Circle(V(-99.4, 40, 0), V(0, 0, 1), 0.5),
], False)
sketch16.addConstraint([
    Sketcher.Constraint("Equal", 0, 1),
    Sketcher.Constraint("Horizontal", 0, 3, 1, 3),
    Sketcher.Constraint("Diameter", 0, Q("1 mm")),
    Sketcher.Constraint("DistanceY", -1, 1, 0, 3, Q("40 mm")),
    Sketcher.Constraint("DistanceX", 1, 3, 0, 3, Q("20 mm")),
    Sketcher.Constraint("DistanceX", 0, 3, -1, 1, Q("79.439408 mm")),
])
pocket9 = doc.addObject("PartDesign::Pocket", "Pocket008")
body.addObject(pocket9)
pocket9.Profile = sketch16
pocket9.Length = 10

doc.recompute()
